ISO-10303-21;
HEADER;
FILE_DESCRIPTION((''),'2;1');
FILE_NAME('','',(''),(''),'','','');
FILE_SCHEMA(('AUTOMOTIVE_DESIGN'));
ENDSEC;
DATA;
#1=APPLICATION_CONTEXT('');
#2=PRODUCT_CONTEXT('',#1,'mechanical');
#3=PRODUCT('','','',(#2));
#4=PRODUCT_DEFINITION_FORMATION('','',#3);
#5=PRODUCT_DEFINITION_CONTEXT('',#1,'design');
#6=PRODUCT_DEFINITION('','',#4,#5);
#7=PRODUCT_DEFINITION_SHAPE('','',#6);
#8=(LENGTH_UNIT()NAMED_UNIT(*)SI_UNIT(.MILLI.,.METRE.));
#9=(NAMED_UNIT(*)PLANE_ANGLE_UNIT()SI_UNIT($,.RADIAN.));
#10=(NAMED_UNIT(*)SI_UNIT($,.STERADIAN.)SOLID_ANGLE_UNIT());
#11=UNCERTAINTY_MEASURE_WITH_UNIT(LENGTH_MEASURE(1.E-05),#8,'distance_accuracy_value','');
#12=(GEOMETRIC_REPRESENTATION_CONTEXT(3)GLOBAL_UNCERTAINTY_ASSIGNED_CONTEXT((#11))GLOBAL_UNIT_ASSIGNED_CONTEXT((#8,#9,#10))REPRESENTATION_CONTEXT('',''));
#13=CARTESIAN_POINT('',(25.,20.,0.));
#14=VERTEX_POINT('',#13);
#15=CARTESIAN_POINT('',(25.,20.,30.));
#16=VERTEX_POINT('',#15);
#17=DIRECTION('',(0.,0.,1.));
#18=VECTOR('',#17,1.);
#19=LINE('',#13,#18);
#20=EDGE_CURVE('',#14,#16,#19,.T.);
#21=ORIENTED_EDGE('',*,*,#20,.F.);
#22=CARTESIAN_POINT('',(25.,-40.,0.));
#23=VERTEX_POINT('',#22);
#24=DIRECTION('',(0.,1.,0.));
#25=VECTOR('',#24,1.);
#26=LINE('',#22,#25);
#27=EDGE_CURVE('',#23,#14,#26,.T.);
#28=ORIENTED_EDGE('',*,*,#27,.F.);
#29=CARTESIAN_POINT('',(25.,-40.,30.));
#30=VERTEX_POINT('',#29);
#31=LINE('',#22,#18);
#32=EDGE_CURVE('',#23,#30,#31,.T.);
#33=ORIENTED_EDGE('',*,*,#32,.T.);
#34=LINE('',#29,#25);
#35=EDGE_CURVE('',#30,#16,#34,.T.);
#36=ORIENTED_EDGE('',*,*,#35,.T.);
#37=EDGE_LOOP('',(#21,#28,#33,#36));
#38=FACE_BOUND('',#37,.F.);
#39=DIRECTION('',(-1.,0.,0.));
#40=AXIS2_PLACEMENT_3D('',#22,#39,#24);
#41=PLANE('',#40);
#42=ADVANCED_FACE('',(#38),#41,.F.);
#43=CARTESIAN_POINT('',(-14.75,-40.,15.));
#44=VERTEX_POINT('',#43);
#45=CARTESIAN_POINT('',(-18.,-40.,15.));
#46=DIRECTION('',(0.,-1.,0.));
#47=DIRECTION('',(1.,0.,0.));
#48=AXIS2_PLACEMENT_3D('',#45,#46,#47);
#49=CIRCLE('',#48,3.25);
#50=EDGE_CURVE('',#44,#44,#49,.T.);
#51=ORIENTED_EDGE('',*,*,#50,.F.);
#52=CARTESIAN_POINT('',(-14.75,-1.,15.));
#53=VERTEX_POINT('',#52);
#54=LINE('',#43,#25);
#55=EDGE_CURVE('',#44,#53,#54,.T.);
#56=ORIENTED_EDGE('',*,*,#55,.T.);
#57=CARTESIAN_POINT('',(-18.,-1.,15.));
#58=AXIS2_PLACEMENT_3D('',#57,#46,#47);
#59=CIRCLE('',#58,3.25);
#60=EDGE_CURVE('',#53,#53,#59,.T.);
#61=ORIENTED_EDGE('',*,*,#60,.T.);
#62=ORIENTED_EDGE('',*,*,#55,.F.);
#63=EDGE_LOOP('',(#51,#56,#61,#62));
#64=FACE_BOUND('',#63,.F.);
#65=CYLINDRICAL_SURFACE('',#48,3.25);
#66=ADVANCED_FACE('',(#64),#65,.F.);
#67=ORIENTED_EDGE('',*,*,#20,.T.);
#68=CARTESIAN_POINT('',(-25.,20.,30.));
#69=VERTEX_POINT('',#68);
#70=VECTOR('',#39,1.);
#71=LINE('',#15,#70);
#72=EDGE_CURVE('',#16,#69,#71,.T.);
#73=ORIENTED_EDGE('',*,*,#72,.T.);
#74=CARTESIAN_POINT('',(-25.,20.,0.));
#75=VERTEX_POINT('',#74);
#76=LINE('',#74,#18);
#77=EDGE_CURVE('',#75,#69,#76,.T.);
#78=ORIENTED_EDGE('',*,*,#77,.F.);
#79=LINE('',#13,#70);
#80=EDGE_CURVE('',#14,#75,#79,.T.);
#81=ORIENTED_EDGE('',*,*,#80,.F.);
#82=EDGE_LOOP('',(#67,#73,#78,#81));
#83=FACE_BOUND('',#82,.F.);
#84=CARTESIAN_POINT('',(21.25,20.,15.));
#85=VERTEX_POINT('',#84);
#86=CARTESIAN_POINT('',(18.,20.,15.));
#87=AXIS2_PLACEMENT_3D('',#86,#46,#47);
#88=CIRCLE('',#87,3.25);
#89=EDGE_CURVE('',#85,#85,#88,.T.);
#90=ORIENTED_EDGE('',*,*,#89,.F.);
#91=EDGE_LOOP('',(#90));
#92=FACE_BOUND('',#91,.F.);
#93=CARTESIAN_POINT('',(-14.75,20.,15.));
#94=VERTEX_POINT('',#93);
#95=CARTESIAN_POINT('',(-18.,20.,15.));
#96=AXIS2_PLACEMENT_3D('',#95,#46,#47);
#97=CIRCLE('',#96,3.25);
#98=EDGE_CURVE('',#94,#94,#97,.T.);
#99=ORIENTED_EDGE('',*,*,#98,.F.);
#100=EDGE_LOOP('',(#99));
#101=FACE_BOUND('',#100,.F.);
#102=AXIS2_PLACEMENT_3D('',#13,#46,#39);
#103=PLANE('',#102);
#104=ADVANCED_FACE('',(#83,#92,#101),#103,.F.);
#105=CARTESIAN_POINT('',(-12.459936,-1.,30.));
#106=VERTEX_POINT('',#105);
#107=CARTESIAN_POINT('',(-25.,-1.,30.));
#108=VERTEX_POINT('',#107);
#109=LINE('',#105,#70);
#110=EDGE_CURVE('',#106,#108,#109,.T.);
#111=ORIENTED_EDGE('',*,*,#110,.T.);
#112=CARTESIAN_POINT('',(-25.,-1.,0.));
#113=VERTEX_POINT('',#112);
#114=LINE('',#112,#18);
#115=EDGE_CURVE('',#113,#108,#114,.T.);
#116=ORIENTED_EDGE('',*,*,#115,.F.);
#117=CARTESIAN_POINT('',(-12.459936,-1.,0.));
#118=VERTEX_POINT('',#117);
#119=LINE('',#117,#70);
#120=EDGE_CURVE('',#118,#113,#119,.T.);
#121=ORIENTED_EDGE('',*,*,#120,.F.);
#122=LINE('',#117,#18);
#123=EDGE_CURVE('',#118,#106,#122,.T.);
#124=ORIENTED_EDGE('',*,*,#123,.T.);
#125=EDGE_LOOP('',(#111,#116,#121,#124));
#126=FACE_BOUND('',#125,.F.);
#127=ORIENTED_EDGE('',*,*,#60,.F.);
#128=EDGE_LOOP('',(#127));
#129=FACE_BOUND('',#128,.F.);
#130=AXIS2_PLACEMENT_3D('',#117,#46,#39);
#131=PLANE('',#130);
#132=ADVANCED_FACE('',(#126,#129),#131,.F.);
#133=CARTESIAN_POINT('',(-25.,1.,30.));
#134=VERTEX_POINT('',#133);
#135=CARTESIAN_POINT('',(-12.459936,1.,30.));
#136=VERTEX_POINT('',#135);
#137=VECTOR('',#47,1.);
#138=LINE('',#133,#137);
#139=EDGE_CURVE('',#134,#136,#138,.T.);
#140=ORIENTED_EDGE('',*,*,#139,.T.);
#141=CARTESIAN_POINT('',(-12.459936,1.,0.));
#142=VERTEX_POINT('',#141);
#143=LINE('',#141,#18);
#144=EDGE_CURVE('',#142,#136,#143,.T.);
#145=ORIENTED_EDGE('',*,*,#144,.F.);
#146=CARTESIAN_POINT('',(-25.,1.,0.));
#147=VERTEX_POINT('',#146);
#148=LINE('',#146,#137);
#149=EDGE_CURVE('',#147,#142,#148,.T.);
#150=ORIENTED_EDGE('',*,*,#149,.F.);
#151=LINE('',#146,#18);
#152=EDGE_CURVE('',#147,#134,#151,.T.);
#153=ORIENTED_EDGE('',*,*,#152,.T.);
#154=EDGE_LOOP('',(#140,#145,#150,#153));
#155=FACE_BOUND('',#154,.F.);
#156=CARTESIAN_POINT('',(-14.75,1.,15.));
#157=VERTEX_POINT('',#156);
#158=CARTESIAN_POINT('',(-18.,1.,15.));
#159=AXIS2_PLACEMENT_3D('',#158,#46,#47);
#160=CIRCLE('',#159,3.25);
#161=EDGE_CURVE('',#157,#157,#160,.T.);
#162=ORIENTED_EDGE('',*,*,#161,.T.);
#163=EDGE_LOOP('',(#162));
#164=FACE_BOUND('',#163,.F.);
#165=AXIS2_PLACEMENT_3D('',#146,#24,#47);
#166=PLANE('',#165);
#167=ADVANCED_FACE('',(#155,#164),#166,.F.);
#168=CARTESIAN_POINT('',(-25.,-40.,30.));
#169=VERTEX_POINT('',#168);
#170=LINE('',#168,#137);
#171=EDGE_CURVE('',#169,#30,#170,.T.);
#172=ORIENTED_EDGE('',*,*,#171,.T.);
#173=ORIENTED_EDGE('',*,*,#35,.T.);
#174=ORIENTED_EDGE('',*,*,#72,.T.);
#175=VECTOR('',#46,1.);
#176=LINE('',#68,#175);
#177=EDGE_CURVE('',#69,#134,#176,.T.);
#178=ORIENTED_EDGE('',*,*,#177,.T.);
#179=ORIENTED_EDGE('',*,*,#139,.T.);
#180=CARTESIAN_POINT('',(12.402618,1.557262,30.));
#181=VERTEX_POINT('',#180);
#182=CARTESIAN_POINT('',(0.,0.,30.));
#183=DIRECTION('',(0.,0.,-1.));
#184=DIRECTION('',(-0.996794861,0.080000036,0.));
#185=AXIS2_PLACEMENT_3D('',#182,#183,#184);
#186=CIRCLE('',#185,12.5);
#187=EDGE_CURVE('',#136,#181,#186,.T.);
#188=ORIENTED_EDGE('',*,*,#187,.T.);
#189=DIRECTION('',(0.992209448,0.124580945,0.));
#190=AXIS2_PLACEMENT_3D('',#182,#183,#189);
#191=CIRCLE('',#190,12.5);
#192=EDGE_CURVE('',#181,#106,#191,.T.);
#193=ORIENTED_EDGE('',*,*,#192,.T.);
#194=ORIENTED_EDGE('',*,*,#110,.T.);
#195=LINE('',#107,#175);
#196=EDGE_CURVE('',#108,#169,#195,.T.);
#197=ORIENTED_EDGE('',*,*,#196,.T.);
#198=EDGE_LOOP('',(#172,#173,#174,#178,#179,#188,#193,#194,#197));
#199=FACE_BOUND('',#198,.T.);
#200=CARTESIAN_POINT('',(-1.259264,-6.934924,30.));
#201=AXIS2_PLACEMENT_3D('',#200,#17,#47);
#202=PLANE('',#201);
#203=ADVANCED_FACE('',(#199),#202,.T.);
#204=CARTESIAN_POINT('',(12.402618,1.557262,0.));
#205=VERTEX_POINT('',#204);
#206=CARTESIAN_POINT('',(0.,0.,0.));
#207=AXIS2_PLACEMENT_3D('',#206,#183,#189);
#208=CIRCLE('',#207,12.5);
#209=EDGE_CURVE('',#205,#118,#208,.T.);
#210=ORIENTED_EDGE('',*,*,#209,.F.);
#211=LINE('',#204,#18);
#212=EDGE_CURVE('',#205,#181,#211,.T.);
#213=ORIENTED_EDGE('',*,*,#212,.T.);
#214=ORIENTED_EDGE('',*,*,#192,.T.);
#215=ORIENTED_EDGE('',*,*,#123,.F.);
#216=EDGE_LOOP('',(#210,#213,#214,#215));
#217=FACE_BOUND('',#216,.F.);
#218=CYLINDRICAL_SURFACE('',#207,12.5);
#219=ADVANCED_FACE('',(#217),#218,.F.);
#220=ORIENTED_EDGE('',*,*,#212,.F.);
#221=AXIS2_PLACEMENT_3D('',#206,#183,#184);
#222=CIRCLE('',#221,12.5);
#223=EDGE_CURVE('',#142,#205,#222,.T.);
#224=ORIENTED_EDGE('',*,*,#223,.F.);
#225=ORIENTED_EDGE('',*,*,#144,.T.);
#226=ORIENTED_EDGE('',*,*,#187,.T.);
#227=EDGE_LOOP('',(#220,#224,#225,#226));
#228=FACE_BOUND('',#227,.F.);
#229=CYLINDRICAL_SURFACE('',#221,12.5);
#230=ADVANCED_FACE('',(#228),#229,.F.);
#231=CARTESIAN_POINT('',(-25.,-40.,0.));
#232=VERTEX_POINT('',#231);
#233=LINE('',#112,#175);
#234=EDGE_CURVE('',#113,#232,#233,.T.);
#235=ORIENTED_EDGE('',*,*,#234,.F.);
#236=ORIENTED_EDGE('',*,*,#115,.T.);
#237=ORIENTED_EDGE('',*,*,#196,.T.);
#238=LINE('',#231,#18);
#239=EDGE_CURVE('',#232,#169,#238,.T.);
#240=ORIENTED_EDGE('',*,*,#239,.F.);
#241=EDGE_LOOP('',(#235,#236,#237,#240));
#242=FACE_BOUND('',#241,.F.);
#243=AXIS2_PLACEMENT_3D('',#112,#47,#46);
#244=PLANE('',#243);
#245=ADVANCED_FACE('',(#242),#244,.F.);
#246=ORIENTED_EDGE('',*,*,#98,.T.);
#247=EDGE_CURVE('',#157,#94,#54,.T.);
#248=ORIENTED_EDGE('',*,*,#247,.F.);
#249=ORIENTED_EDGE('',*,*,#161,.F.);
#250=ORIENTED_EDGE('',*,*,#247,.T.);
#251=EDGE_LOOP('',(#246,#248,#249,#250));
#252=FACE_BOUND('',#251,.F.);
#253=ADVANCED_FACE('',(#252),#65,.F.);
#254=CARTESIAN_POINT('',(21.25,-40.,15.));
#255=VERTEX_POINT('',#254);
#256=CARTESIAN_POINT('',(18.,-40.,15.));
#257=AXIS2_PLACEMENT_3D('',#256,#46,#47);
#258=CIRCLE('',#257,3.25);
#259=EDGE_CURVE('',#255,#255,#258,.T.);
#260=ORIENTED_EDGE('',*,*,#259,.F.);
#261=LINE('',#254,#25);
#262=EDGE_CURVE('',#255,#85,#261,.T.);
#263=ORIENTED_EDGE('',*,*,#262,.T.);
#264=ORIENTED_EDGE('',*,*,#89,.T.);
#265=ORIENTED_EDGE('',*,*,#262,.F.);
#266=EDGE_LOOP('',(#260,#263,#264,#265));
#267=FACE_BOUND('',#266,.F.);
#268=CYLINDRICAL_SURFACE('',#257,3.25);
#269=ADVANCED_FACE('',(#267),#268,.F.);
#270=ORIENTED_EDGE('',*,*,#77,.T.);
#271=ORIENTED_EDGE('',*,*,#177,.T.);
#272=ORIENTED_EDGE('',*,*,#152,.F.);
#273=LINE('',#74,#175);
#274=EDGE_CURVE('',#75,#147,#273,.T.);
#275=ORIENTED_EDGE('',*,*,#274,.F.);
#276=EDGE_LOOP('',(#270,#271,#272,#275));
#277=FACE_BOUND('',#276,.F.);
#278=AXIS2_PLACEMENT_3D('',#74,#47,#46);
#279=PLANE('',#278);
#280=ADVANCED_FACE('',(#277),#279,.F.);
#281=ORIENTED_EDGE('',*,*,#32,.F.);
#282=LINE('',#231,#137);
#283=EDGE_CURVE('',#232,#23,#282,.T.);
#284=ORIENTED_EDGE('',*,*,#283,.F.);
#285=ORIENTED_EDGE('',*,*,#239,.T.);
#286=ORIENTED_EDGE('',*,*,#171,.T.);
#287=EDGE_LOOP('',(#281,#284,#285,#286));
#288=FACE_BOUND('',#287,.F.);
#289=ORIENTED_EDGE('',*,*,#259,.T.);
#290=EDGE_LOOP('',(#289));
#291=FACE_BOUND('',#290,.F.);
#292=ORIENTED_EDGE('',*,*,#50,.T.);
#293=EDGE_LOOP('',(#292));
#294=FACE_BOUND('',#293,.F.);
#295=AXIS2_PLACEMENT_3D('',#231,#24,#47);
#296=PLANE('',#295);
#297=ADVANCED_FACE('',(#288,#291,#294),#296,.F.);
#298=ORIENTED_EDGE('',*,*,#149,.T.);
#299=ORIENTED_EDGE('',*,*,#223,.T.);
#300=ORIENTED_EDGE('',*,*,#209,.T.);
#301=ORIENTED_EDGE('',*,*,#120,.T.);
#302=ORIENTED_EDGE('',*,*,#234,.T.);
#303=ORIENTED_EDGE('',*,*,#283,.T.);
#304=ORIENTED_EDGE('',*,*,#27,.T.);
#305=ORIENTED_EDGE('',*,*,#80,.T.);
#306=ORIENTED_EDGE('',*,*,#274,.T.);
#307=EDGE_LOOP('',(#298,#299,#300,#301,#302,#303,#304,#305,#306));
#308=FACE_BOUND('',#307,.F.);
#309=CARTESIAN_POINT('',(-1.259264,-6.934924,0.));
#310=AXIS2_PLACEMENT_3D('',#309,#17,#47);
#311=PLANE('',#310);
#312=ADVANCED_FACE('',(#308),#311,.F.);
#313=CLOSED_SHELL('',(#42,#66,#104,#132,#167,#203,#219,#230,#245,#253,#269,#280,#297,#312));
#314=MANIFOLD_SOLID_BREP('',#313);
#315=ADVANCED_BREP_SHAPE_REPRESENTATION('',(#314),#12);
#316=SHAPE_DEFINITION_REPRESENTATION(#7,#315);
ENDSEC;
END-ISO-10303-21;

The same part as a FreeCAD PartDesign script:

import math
import FreeCAD as App
import Part
import Sketcher
Q = App.Units.Quantity

doc = App.newDocument("Part")
body = doc.addObject("PartDesign::Body", "Body")

# Sketch on XY plane
sketch1 = body.newObject("Sketcher::SketchObject", "Sketch")
sketch1.AttachmentSupport = (doc.getObject("XY_Plane"), [""])
sketch1.MapMode = "FlatFace"
sketch1.addGeometry(Part.LineSegment(App.Vector(-25, -1, 0), App.Vector(-25, -40, 0)), False)
sketch1.addGeometry(Part.LineSegment(App.Vector(-25, -40, 0), App.Vector(25, -40, 0)), False)
sketch1.addGeometry(Part.LineSegment(App.Vector(25, -40, 0), App.Vector(25, 20, 0)), False)
sketch1.addGeometry(Part.LineSegment(App.Vector(25, 20, 0), App.Vector(-25, 20, 0)), False)
sketch1.addGeometry(Part.LineSegment(App.Vector(-25, 20, 0), App.Vector(-25, 1, 0)), False)
sketch1.addGeometry(Part.LineSegment(App.Vector(-25, 1, 0), App.Vector(-12, 1, 0)), False)
sketch1.addGeometry(Part.ArcOfCircle(Part.Circle(App.Vector(0, 0, 0), App.Vector(0, 0, 1), 13), math.radians(7), math.radians(175)), False)
sketch1.addGeometry(Part.ArcOfCircle(Part.Circle(App.Vector(0, 0, 0), App.Vector(0, 0, 1), 13), math.radians(-175), math.radians(7)), False)
sketch1.addGeometry(Part.LineSegment(App.Vector(-12, -1, 0), App.Vector(-25, -1, 0)), False)
sketch1.addConstraint(Sketcher.Constraint("Coincident", 0, 2, 1, 1))
sketch1.addConstraint(Sketcher.Constraint("Coincident", 1, 2, 2, 1))
sketch1.addConstraint(Sketcher.Constraint("Coincident", 2, 2, 3, 1))
sketch1.addConstraint(Sketcher.Constraint("Coincident", 3, 2, 4, 1))
sketch1.addConstraint(Sketcher.Constraint("Coincident", 4, 2, 5, 1))
sketch1.addConstraint(Sketcher.Constraint("Coincident", 5, 2, 6, 2))
sketch1.addConstraint(Sketcher.Constraint("Tangent", 6, 1, 7, 2))
sketch1.addConstraint(Sketcher.Constraint("Coincident", 7, 1, 8, 1))
sketch1.addConstraint(Sketcher.Constraint("Coincident", 8, 2, 0, 1))
sketch1.addConstraint(Sketcher.Constraint("Vertical", 0))
sketch1.addConstraint(Sketcher.Constraint("Horizontal", 1))
sketch1.addConstraint(Sketcher.Constraint("Vertical", 2))
sketch1.addConstraint(Sketcher.Constraint("Horizontal", 3))
sketch1.addConstraint(Sketcher.Constraint("Vertical", 4))
sketch1.addConstraint(Sketcher.Constraint("Horizontal", 5))
sketch1.addConstraint(Sketcher.Constraint("Horizontal", 8))
sketch1.addConstraint(Sketcher.Constraint("Coincident", 6, 3, -1, 1))
sketch1.addConstraint(Sketcher.Constraint("Equal", 6, 7))
sketch1.addConstraint(Sketcher.Constraint("Symmetric", 4, 2, 8, 2, -1))
sketch1.addConstraint(Sketcher.Constraint("Radius", 6, Q("12.5 mm")))
sketch1.addConstraint(Sketcher.Constraint("DistanceX", 1, 1, 1, 2, Q("50 mm")))
sketch1.addConstraint(Sketcher.Constraint("DistanceY", 0, 2, 0, 1, Q("39 mm")))
sketch1.addConstraint(Sketcher.Constraint("DistanceY", 2, 1, 2, 2, Q("60 mm")))
sketch1.addConstraint(Sketcher.Constraint("DistanceY", 4, 2, 4, 1, Q("19 mm")))
sketch1.addConstraint(Sketcher.Constraint("DistanceX", 0, 2, -1, 1, Q("25 mm")))
sketch1.addConstraint(Sketcher.Constraint("DistanceX", -1, 1, 6, 1, Q("12.402618 mm")))
pad1 = body.newObject("PartDesign::Pad", "Pad")
pad1.Profile = sketch1
pad1.Length = 30

# Sketch on XZ plane
sketch2 = body.newObject("Sketcher::SketchObject", "Sketch001")
sketch2.AttachmentSupport = (doc.getObject("XZ_Plane"), [""])
sketch2.MapMode = "FlatFace"
sketch2.AttachmentOffset = App.Placement(App.Vector(0, 0, 40), App.Rotation())
sketch2.addGeometry(Part.Circle(App.Vector(-18, 15, 0), App.Vector(0, 0, 1), 3.2), False)
sketch2.addGeometry(Part.Circle(App.Vector(18, 15, 0), App.Vector(0, 0, 1), 3.2), False)
sketch2.addConstraint(Sketcher.Constraint("Equal", 0, 1))
sketch2.addConstraint(Sketcher.Constraint("Symmetric", 0, 3, 1, 3, -2))
sketch2.addConstraint(Sketcher.Constraint("Diameter", 0, Q("6.5 mm")))
sketch2.addConstraint(Sketcher.Constraint("DistanceX", 0, 3, -1, 1, Q("18 mm")))
sketch2.addConstraint(Sketcher.Constraint("DistanceY", -1, 1, 0, 3, Q("15 mm")))
pocket1 = body.newObject("PartDesign::Pocket", "Pocket")
pocket1.Profile = sketch2
pocket1.Type = "ThroughAll"

doc.recompute()
